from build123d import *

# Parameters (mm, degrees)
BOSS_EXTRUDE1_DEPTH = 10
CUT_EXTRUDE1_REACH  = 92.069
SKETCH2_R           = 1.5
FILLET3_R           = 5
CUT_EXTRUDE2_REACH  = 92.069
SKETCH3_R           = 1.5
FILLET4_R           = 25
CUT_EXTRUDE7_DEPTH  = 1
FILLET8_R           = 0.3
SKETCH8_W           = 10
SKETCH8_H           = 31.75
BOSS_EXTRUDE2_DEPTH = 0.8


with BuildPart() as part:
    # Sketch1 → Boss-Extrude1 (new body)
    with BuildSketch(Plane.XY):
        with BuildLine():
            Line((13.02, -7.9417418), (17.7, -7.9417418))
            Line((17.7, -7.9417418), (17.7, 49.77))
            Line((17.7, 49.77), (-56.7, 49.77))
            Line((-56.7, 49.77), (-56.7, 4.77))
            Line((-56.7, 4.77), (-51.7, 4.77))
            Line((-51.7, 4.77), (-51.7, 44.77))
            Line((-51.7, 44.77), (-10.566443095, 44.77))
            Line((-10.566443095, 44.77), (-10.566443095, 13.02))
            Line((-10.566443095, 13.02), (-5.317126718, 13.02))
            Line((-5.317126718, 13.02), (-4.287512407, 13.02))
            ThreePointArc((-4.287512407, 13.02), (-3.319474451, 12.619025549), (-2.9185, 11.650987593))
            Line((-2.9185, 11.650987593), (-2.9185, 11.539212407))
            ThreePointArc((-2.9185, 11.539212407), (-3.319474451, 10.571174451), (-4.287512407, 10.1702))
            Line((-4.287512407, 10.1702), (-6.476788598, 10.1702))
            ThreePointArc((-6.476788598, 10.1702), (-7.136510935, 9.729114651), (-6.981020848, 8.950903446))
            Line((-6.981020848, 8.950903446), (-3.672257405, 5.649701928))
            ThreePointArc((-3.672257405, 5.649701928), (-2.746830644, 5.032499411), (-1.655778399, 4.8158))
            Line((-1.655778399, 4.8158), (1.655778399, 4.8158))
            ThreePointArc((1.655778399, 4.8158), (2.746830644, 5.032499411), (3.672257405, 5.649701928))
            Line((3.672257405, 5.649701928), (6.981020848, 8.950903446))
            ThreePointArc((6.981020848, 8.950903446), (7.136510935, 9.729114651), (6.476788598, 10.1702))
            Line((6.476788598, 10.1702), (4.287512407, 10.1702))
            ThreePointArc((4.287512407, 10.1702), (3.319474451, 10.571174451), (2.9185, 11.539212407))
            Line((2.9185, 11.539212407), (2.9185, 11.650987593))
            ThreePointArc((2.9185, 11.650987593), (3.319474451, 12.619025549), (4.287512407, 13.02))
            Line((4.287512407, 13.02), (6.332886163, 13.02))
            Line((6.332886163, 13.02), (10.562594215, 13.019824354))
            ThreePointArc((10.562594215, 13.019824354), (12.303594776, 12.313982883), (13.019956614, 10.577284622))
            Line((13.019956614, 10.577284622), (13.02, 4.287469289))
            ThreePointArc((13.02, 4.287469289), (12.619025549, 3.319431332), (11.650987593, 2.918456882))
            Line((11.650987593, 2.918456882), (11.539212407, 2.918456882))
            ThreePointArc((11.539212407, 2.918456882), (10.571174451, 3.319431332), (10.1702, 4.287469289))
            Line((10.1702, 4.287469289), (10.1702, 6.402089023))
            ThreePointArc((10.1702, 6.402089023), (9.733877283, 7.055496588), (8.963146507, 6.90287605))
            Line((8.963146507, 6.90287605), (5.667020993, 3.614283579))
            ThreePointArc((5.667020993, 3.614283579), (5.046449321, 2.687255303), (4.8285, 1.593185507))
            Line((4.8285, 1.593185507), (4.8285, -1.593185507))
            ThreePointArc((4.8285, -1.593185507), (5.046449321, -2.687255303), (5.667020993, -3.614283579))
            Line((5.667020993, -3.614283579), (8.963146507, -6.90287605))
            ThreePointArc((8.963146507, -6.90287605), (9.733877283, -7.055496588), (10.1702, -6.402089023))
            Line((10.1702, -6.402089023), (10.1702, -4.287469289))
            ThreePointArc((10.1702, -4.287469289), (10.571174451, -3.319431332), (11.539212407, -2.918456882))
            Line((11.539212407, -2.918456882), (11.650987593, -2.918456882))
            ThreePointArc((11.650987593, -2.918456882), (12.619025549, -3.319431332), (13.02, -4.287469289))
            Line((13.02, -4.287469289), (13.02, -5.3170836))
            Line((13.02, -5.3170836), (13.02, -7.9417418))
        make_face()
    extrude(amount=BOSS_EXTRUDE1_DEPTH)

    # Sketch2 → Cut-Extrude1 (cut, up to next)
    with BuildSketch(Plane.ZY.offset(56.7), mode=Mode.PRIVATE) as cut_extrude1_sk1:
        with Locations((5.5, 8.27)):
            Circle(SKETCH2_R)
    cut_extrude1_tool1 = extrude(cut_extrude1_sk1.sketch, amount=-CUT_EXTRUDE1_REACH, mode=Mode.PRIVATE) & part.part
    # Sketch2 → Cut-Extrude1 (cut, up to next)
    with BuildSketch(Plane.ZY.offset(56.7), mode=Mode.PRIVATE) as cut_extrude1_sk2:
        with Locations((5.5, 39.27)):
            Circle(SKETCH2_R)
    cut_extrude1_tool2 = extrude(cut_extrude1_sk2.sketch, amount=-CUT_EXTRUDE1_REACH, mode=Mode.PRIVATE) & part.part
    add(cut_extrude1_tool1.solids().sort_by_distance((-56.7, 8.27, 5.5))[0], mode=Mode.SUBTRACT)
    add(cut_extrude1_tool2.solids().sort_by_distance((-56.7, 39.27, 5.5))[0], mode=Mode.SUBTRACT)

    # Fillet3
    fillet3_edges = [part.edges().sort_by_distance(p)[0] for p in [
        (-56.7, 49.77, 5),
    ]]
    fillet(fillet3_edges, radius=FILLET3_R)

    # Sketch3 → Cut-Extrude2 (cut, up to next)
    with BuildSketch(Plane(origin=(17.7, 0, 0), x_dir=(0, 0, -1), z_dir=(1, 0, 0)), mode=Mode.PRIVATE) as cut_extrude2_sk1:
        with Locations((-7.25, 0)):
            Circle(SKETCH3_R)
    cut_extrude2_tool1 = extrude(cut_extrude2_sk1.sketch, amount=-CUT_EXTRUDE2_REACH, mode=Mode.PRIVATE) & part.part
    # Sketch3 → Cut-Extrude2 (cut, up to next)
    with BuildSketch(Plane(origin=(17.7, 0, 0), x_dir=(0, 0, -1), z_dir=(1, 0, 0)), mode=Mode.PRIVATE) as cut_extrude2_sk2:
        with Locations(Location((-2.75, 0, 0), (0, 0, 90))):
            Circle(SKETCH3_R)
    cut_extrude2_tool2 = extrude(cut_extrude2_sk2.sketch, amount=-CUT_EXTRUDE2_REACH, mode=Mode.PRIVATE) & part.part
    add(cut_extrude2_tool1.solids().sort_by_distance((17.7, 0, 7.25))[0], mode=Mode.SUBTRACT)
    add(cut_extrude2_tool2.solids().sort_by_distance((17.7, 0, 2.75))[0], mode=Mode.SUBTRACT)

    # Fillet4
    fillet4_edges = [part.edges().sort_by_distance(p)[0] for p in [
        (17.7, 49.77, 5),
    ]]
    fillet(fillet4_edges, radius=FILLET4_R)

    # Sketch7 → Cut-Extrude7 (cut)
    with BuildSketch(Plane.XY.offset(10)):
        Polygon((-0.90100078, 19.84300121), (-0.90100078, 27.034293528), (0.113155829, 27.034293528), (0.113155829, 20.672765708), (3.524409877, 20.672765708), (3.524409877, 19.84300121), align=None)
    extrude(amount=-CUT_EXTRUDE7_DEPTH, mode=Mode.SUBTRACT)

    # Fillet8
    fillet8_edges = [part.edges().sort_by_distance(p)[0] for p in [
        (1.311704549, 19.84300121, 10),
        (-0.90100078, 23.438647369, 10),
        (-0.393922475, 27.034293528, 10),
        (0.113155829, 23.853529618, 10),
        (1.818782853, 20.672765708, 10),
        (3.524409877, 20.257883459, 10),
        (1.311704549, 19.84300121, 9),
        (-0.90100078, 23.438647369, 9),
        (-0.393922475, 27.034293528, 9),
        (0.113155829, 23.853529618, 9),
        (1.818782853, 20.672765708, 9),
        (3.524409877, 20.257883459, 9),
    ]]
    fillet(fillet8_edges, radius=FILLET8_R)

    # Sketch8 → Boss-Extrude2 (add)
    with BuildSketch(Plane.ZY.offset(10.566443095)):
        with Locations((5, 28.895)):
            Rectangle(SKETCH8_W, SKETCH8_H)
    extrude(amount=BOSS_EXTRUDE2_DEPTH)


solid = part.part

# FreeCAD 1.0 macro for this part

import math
import FreeCAD as App
import Part
import Sketcher
from FreeCAD import Vector
Q = App.Units.Quantity


def edges_at(feature, points):
    """Names of the edges that pass closest to the given points."""
    edges = feature.Shape.Edges
    near = lambda p: min(range(len(edges)), key=lambda i: edges[i].distToShape(Part.Vertex(*p))[0])
    return sorted({f"Edge{near(p) + 1}" for p in points})

doc = App.newDocument("Part")
body = doc.addObject("PartDesign::Body", "Body")

# Sketch on XY plane
sketch1 = body.newObject("Sketcher::SketchObject", "Sketch")
sketch1.AttachmentSupport = (doc.getObject("XY_Plane"), [""])
sketch1.MapMode = "FlatFace"
sketch1.addGeometry(Part.LineSegment(Vector(13.02, -7.94, 0), Vector(17.7, -7.94, 0)), False)
sketch1.addGeometry(Part.LineSegment(Vector(17.7, -7.94, 0), Vector(17.7, 49.77, 0)), False)
sketch1.addGeometry(Part.LineSegment(Vector(17.7, 49.77, 0), Vector(-56.7, 49.77, 0)), False)
sketch1.addGeometry(Part.LineSegment(Vector(-56.7, 49.77, 0), Vector(-56.7, 4.77, 0)), False)
sketch1.addGeometry(Part.LineSegment(Vector(-56.7, 4.77, 0), Vector(-51.7, 4.77, 0)), False)
sketch1.addGeometry(Part.LineSegment(Vector(-51.7, 4.77, 0), Vector(-51.7, 44.77, 0)), False)
sketch1.addGeometry(Part.LineSegment(Vector(-51.7, 44.77, 0), Vector(-10.57, 44.77, 0)), False)
sketch1.addGeometry(Part.LineSegment(Vector(-10.57, 44.77, 0), Vector(-10.57, 13.02, 0)), False)
sketch1.addGeometry(Part.LineSegment(Vector(-10.57, 13.02, 0), Vector(-4.29, 13.02, 0)), False)
sketch1.addGeometry(Part.ArcOfCircle(Part.Circle(Vector(-4.29, 11.65, 0), Vector(0, 0, 1), 1.37), math.radians(0), math.radians(90)), False)
sketch1.addGeometry(Part.LineSegment(Vector(-2.92, 11.65, 0), Vector(-2.92, 11.54, 0)), False)
sketch1.addGeometry(Part.ArcOfCircle(Part.Circle(Vector(-4.29, 11.54, 0), Vector(0, 0, 1), 1.37), math.radians(-90), math.radians(0)), False)
sketch1.addGeometry(Part.LineSegment(Vector(-4.29, 10.17, 0), Vector(-6.48, 10.17, 0)), False)
sketch1.addGeometry(Part.ArcOfCircle(Part.Circle(Vector(-6.48, 9.46, 0), Vector(0, 0, 1), 0.71), math.radians(90), math.radians(225)), False)
sketch1.addGeometry(Part.LineSegment(Vector(-6.98, 8.95, 0), Vector(-3.67, 5.65, 0)), False)
sketch1.addGeometry(Part.ArcOfCircle(Part.Circle(Vector(-1.66, 7.67, 0), Vector(0, 0, 1), 2.85), math.radians(-135), math.radians(-90)), False)
sketch1.addGeometry(Part.LineSegment(Vector(-1.66, 4.82, 0), Vector(1.66, 4.82, 0)), False)
sketch1.addGeometry(Part.ArcOfCircle(Part.Circle(Vector(1.66, 7.67, 0), Vector(0, 0, 1), 2.85), math.radians(-90), math.radians(-45)), False)
sketch1.addGeometry(Part.LineSegment(Vector(3.67, 5.65, 0), Vector(6.98, 8.95, 0)), False)
sketch1.addGeometry(Part.ArcOfCircle(Part.Circle(Vector(6.48, 9.46, 0), Vector(0, 0, 1), 0.71), math.radians(-45), math.radians(90)), False)
sketch1.addGeometry(Part.LineSegment(Vector(6.48, 10.17, 0), Vector(4.29, 10.17, 0)), False)
sketch1.addGeometry(Part.ArcOfCircle(Part.Circle(Vector(4.29, 11.54, 0), Vector(0, 0, 1), 1.37), math.radians(-180), math.radians(-90)), False)
sketch1.addGeometry(Part.LineSegment(Vector(2.92, 11.54, 0), Vector(2.92, 11.65, 0)), False)
sketch1.addGeometry(Part.ArcOfCircle(Part.Circle(Vector(4.29, 11.65, 0), Vector(0, 0, 1), 1.37), math.radians(90), math.radians(180)), False)
sketch1.addGeometry(Part.LineSegment(Vector(4.29, 13.02, 0), Vector(6.33, 13.02, 0)), False)
sketch1.addGeometry(Part.LineSegment(Vector(6.33, 13.02, 0), Vector(10.56, 13.02, 0)), False)
sketch1.addGeometry(Part.ArcOfCircle(Part.Circle(Vector(10.59, 10.59, 0), Vector(0, 0, 1), 2.43), math.radians(0), math.radians(91)), False)
sketch1.addGeometry(Part.LineSegment(Vector(13.02, 10.58, 0), Vector(13.02, 4.29, 0)), False)
sketch1.addGeometry(Part.ArcOfCircle(Part.Circle(Vector(11.65, 4.29, 0), Vector(0, 0, 1), 1.37), math.radians(-90), math.radians(0)), False)
sketch1.addGeometry(Part.LineSegment(Vector(11.65, 2.92, 0), Vector(11.54, 2.92, 0)), False)
sketch1.addGeometry(Part.ArcOfCircle(Part.Circle(Vector(11.54, 4.29, 0), Vector(0, 0, 1), 1.37), math.radians(180), math.radians(270)), False)
sketch1.addGeometry(Part.LineSegment(Vector(10.17, 4.29, 0), Vector(10.17, 6.4, 0)), False)
sketch1.addGeometry(Part.ArcOfCircle(Part.Circle(Vector(9.46, 6.4, 0), Vector(0, 0, 1), 0.71), math.radians(0), math.radians(135)), False)
sketch1.addGeometry(Part.LineSegment(Vector(8.96, 6.9, 0), Vector(5.67, 3.61, 0)), False)
sketch1.addGeometry(Part.ArcOfCircle(Part.Circle(Vector(7.68, 1.59, 0), Vector(0, 0, 1), 2.85), math.radians(135), math.radians(180)), False)
sketch1.addGeometry(Part.LineSegment(Vector(4.83, 1.59, 0), Vector(4.83, -1.59, 0)), False)
sketch1.addGeometry(Part.ArcOfCircle(Part.Circle(Vector(7.68, -1.59, 0), Vector(0, 0, 1), 2.85), math.radians(180), math.radians(225)), False)
sketch1.addGeometry(Part.LineSegment(Vector(5.67, -3.61, 0), Vector(8.96, -6.9, 0)), False)
sketch1.addGeometry(Part.ArcOfCircle(Part.Circle(Vector(9.46, -6.4, 0), Vector(0, 0, 1), 0.71), math.radians(-135), math.radians(0)), False)
sketch1.addGeometry(Part.LineSegment(Vector(10.17, -6.4, 0), Vector(10.17, -4.29, 0)), False)
sketch1.addGeometry(Part.ArcOfCircle(Part.Circle(Vector(11.54, -4.29, 0), Vector(0, 0, 1), 1.37), math.radians(90), math.radians(180)), False)
sketch1.addGeometry(Part.LineSegment(Vector(11.54, -2.92, 0), Vector(11.65, -2.92, 0)), False)
sketch1.addGeometry(Part.ArcOfCircle(Part.Circle(Vector(11.65, -4.29, 0), Vector(0, 0, 1), 1.37), math.radians(0), math.radians(90)), False)
sketch1.addGeometry(Part.LineSegment(Vector(13.02, -4.29, 0), Vector(13.02, -7.94, 0)), False)
sketch1.addConstraint(Sketcher.Constraint("Coincident", 0, 2, 1, 1))
sketch1.addConstraint(Sketcher.Constraint("Coincident", 1, 2, 2, 1))
sketch1.addConstraint(Sketcher.Constraint("Coincident", 2, 2, 3, 1))
sketch1.addConstraint(Sketcher.Constraint("Coincident", 3, 2, 4, 1))
sketch1.addConstraint(Sketcher.Constraint("Coincident", 4, 2, 5, 1))
sketch1.addConstraint(Sketcher.Constraint("Coincident", 5, 2, 6, 1))
sketch1.addConstraint(Sketcher.Constraint("Coincident", 6, 2, 7, 1))
sketch1.addConstraint(Sketcher.Constraint("Coincident", 7, 2, 8, 1))
sketch1.addConstraint(Sketcher.Constraint("Tangent", 8, 2, 9, 2))
sketch1.addConstraint(Sketcher.Constraint("Tangent", 9, 1, 10, 1))
sketch1.addConstraint(Sketcher.Constraint("Tangent", 10, 2, 11, 2))
sketch1.addConstraint(Sketcher.Constraint("Tangent", 11, 1, 12, 1))
sketch1.addConstraint(Sketcher.Constraint("Tangent", 12, 2, 13, 1))
sketch1.addConstraint(Sketcher.Constraint("Tangent", 13, 2, 14, 1))
sketch1.addConstraint(Sketcher.Constraint("Tangent", 14, 2, 15, 1))
sketch1.addConstraint(Sketcher.Constraint("Tangent", 15, 2, 16, 1))
sketch1.addConstraint(Sketcher.Constraint("Tangent", 16, 2, 17, 1))
sketch1.addConstraint(Sketcher.Constraint("Tangent", 17, 2, 18, 1))
sketch1.addConstraint(Sketcher.Constraint("Tangent", 18, 2, 19, 1))
sketch1.addConstraint(Sketcher.Constraint("Tangent", 19, 2, 20, 1))
sketch1.addConstraint(Sketcher.Constraint("Tangent", 20, 2, 21, 2))
sketch1.addConstraint(Sketcher.Constraint("Tangent", 21, 1, 22, 1))
sketch1.addConstraint(Sketcher.Constraint("Tangent", 22, 2, 23, 2))
sketch1.addConstraint(Sketcher.Constraint("Tangent", 23, 1, 24, 1))
sketch1.addConstraint(Sketcher.Constraint("Coincident", 24, 2, 25, 1))
sketch1.addConstraint(Sketcher.Constraint("Coincident", 25, 2, 26, 2))
sketch1.addConstraint(Sketcher.Constraint("Coincident", 26, 1, 27, 1))
sketch1.addConstraint(Sketcher.Constraint("Coincident", 27, 2, 28, 2))
sketch1.addConstraint(Sketcher.Constraint("Tangent", 28, 1, 29, 1))
sketch1.addConstraint(Sketcher.Constraint("Tangent", 29, 2, 30, 2))
sketch1.addConstraint(Sketcher.Constraint("Tangent", 30, 1, 31, 1))
sketch1.addConstraint(Sketcher.Constraint("Tangent", 31, 2, 32, 1))
sketch1.addConstraint(Sketcher.Constraint("Tangent", 32, 2, 33, 1))
sketch1.addConstraint(Sketcher.Constraint("Tangent", 33, 2, 34, 1))
sketch1.addConstraint(Sketcher.Constraint("Tangent", 34, 2, 35, 1))
sketch1.addConstraint(Sketcher.Constraint("Tangent", 35, 2, 36, 1))
sketch1.addConstraint(Sketcher.Constraint("Tangent", 36, 2, 37, 1))
sketch1.addConstraint(Sketcher.Constraint("Tangent", 37, 2, 38, 1))
sketch1.addConstraint(Sketcher.Constraint("Tangent", 38, 2, 39, 1))
sketch1.addConstraint(Sketcher.Constraint("Tangent", 39, 2, 40, 2))
sketch1.addConstraint(Sketcher.Constraint("Tangent", 40, 1, 41, 1))
sketch1.addConstraint(Sketcher.Constraint("Tangent", 41, 2, 42, 2))
sketch1.addConstraint(Sketcher.Constraint("Tangent", 42, 1, 43, 1))
sketch1.addConstraint(Sketcher.Constraint("Coincident", 43, 2, 0, 1))
sketch1.addConstraint(Sketcher.Constraint("Horizontal", 0))
sketch1.addConstraint(Sketcher.Constraint("Vertical", 1))
sketch1.addConstraint(Sketcher.Constraint("Horizontal", 2))
sketch1.addConstraint(Sketcher.Constraint("Vertical", 3))
sketch1.addConstraint(Sketcher.Constraint("Horizontal", 4))
sketch1.addConstraint(Sketcher.Constraint("Vertical", 5))
sketch1.addConstraint(Sketcher.Constraint("Horizontal", 6))
sketch1.addConstraint(Sketcher.Constraint("Vertical", 7))
sketch1.addConstraint(Sketcher.Constraint("Horizontal", 8))
sketch1.addConstraint(Sketcher.Constraint("Vertical", 10))
sketch1.addConstraint(Sketcher.Constraint("Horizontal", 12))
sketch1.addConstraint(Sketcher.Constraint("Horizontal", 16))
sketch1.addConstraint(Sketcher.Constraint("Horizontal", 20))
sketch1.addConstraint(Sketcher.Constraint("Vertical", 22))
sketch1.addConstraint(Sketcher.Constraint("Horizontal", 24))
sketch1.addConstraint(Sketcher.Constraint("Horizontal", 29))
sketch1.addConstraint(Sketcher.Constraint("Vertical", 31))
sketch1.addConstraint(Sketcher.Constraint("Vertical", 35))
sketch1.addConstraint(Sketcher.Constraint("Vertical", 39))
sketch1.addConstraint(Sketcher.Constraint("Horizontal", 41))
sketch1.addConstraint(Sketcher.Constraint("Vertical", 43))
sketch1.addConstraint(Sketcher.Constraint("Equal", 9, 11))
sketch1.addConstraint(Sketcher.Constraint("Equal", 15, 17))
sketch1.addConstraint(Sketcher.Constraint("Equal", 13, 19))
sketch1.addConstraint(Sketcher.Constraint("Equal", 11, 21))
sketch1.addConstraint(Sketcher.Constraint("Equal", 21, 23))
sketch1.addConstraint(Sketcher.Constraint("Equal", 23, 28))
sketch1.addConstraint(Sketcher.Constraint("Equal", 28, 30))
sketch1.addConstraint(Sketcher.Constraint("Equal", 17, 34))
sketch1.addConstraint(Sketcher.Constraint("Equal", 34, 36))
sketch1.addConstraint(Sketcher.Constraint("Equal", 32, 38))
sketch1.addConstraint(Sketcher.Constraint("Equal", 30, 40))
sketch1.addConstraint(Sketcher.Constraint("Equal", 40, 42))
sketch1.addConstraint(Sketcher.Constraint("Symmetric", 13, 3, 19, 3, -2))
sketch1.addConstraint(Sketcher.Constraint("Symmetric", 9, 3, 23, 3, -2))
sketch1.addConstraint(Sketcher.Constraint("Symmetric", 32, 3, 38, 3, -1))
sketch1.addConstraint(Sketcher.Constraint("Symmetric", 28, 3, 42, 3, -1))
sketch1.addConstraint(Sketcher.Constraint("Parallel", 18, 33))
sketch1.addConstraint(Sketcher.Constraint("Parallel", 14, 37))
sketch1.addConstraint(Sketcher.Constraint("Horizontal", 14, 2, 17, 2))
sketch1.addConstraint(Sketcher.Constraint("Horizontal", 30, 3, 27, 2))
sketch1.addConstraint(Sketcher.Constraint("Equal", 41, 10))
sketch1.addConstraint(Sketcher.Constraint("DistanceX", 4, 1, 4, 2, Q("5 mm")))
sketch1.addConstraint(Sketcher.Constraint("DistanceY", 3, 2, 3, 1, Q("45 mm")))
sketch1.addConstraint(Sketcher.Constraint("DistanceY", 5, 1, 5, 2, Q("40 mm")))
sketch1.addConstraint(Sketcher.Constraint("DistanceX", 2, 2, 2, 1, Q("74.4 mm")))
sketch1.addConstraint(Sketcher.Constraint("Radius", 15, Q("2.855 mm")))
sketch1.addConstraint(Sketcher.Constraint("DistanceX", 0, 1, 0, 2, Q("4.68 mm")))
sketch1.addConstraint(Sketcher.Constraint("DistanceY", 7, 2, 7, 1, Q("31.75 mm")))
sketch1.addConstraint(Sketcher.Constraint("DistanceX", -1, 1, 0, 2, Q("17.7 mm")))
sketch1.addConstraint(Sketcher.Constraint("Radius", 26, Q("2.4282 mm")))
sketch1.addConstraint(Sketcher.Constraint("DistanceY", -1, 1, 1, 2, Q("49.77 mm")))
sketch1.addConstraint(Sketcher.Constraint("Radius", 13, Q("0.713909 mm")))
sketch1.addConstraint(Sketcher.Constraint("Radius", 32, Q("0.707411 mm")))
sketch1.addConstraint(Sketcher.Constraint("Radius", 9, Q("1.369012 mm")))
sketch1.addConstraint(Sketcher.Constraint("Distance", 33, Q("4.656102 mm")))
sketch1.addConstraint(Sketcher.Constraint("DistanceX", 8, 1, 8, 2, Q("6.278931 mm")))
sketch1.addConstraint(Sketcher.Constraint("DistanceY", 1, 1, 1, 2, Q("57.711742 mm")))
sketch1.addConstraint(Sketcher.Constraint("DistanceY", 31, 1, 31, 2, Q("2.11462 mm")))
sketch1.addConstraint(Sketcher.Constraint("DistanceY", 35, 2, 35, 1, Q("3.186371 mm")))
sketch1.addConstraint(Sketcher.Constraint("DistanceY", -1, 1, 15, 3, Q("7.6708 mm")))
sketch1.addConstraint(Sketcher.Constraint("DistanceX", -1, 1, 26, 3, Q("10.5918 mm")))
sketch1.addConstraint(Sketcher.Constraint("DistanceY", -1, 1, 26, 3, Q("10.5918 mm")))
sketch1.addConstraint(Sketcher.Constraint("DistanceX", -1, 1, 34, 3, Q("7.6835 mm")))
sketch1.addConstraint(Sketcher.Constraint("DistanceX", 9, 1, -1, 1, Q("2.9185 mm")))
sketch1.addConstraint(Sketcher.Constraint("DistanceY", -1, 1, 11, 1, Q("10.1702 mm")))
sketch1.addConstraint(Sketcher.Constraint("Distance", 25, Q("4.229708 mm")))
sketch1.addConstraint(Sketcher.Constraint("DistanceX", 12, 2, 12, 1, Q("2.189276 mm")))
sketch1.addConstraint(Sketcher.Constraint("DistanceX", 24, 1, 24, 2, Q("2.045374 mm")))
sketch1.addConstraint(Sketcher.Constraint("Distance", 27, Q("6.289815 mm")))
pad1 = body.newObject("PartDesign::Pad", "Pad")
pad1.Profile = sketch1
pad1.Length = 10

# Sketch on YZ plane
sketch2 = body.newObject("Sketcher::SketchObject", "Sketch001")
sketch2.AttachmentSupport = (doc.getObject("YZ_Plane"), [""])
sketch2.MapMode = "FlatFace"
sketch2.AttachmentOffset = App.Placement(Vector(0, 0, -56.7), App.Rotation())
sketch2.addGeometry(Part.Circle(Vector(8.3, 5.5, 0), Vector(0, 0, 1), 1.5), False)
sketch2.addConstraint(Sketcher.Constraint("Diameter", 0, Q("3 mm")))
sketch2.addConstraint(Sketcher.Constraint("DistanceY", -1, 1, 0, 3, Q("5.5 mm")))
sketch2.addConstraint(Sketcher.Constraint("DistanceX", -1, 1, 0, 3, Q("8.27 mm")))
pocket1 = body.newObject("PartDesign::Pocket", "Pocket")
pocket1.Profile = sketch2
pocket1.Type = "UpToFirst"
pocket1.Reversed = True

# Sketch on YZ plane
sketch3 = body.newObject("Sketcher::SketchObject", "Sketch002")
sketch3.AttachmentSupport = (doc.getObject("YZ_Plane"), [""])
sketch3.MapMode = "FlatFace"
sketch3.AttachmentOffset = App.Placement(Vector(0, 0, -56.7), App.Rotation())
sketch3.addGeometry(Part.Circle(Vector(39.3, 5.5, 0), Vector(0, 0, 1), 1.5), False)
sketch3.addConstraint(Sketcher.Constraint("Diameter", 0, Q("3 mm")))
sketch3.addConstraint(Sketcher.Constraint("DistanceY", -1, 1, 0, 3, Q("5.5 mm")))
sketch3.addConstraint(Sketcher.Constraint("DistanceX", -1, 1, 0, 3, Q("39.27 mm")))
pocket2 = body.newObject("PartDesign::Pocket", "Pocket001")
pocket2.Profile = sketch3
pocket2.Type = "UpToFirst"
pocket2.Reversed = True
doc.recompute()

fillet = body.newObject("PartDesign::Fillet", "Fillet")
fillet.Base = (pocket2, edges_at(pocket2, [(-56.7, 49.77, 5)]))
fillet.Radius = 5

# Sketch on YZ plane
sketch4 = body.newObject("Sketcher::SketchObject", "Sketch003")
sketch4.AttachmentSupport = (doc.getObject("YZ_Plane"), [""])
sketch4.MapMode = "FlatFace"
sketch4.AttachmentOffset = App.Placement(Vector(0, 0, 17.7), App.Rotation())
sketch4.addGeometry(Part.Circle(Vector(0, 7.2, 0), Vector(0, 0, 1), 1.5), False)
sketch4.addConstraint(Sketcher.Constraint("PointOnObject", 0, 3, -2))
sketch4.addConstraint(Sketcher.Constraint("Diameter", 0, Q("3 mm")))
sketch4.addConstraint(Sketcher.Constraint("DistanceY", -1, 1, 0, 3, Q("7.25 mm")))
pocket3 = body.newObject("PartDesign::Pocket", "Pocket002")
pocket3.Profile = sketch4
pocket3.Type = "UpToFirst"

# Sketch on YZ plane
sketch5 = body.newObject("Sketcher::SketchObject", "Sketch004")
sketch5.AttachmentSupport = (doc.getObject("YZ_Plane"), [""])
sketch5.MapMode = "FlatFace"
sketch5.AttachmentOffset = App.Placement(Vector(0, 0, 17.7), App.Rotation())
sketch5.addGeometry(Part.Circle(Vector(0, 2.8, 0), Vector(0, 0, 1), 1.5), False)
sketch5.addConstraint(Sketcher.Constraint("PointOnObject", 0, 3, -2))
sketch5.addConstraint(Sketcher.Constraint("Diameter", 0, Q("3 mm")))
sketch5.addConstraint(Sketcher.Constraint("DistanceY", -1, 1, 0, 3, Q("2.75 mm")))
pocket4 = body.newObject("PartDesign::Pocket", "Pocket003")
pocket4.Profile = sketch5
pocket4.Type = "UpToFirst"
doc.recompute()

fillet2 = body.newObject("PartDesign::Fillet", "Fillet001")
fillet2.Base = (pocket4, edges_at(pocket4, [(17.7, 49.77, 5)]))
fillet2.Radius = 25

# Sketch on XY plane
sketch6 = body.newObject("Sketcher::SketchObject", "Sketch005")
sketch6.AttachmentSupport = (doc.getObject("XY_Plane"), [""])
sketch6.MapMode = "FlatFace"
sketch6.AttachmentOffset = App.Placement(Vector(0, 0, 10), App.Rotation())
sketch6.addGeometry(Part.LineSegment(Vector(-0.9, 27, 0), Vector(-0.9, 19.8, 0)), False)
sketch6.addGeometry(Part.LineSegment(Vector(-0.9, 19.8, 0), Vector(3.5, 19.8, 0)), False)
sketch6.addGeometry(Part.LineSegment(Vector(3.5, 19.8, 0), Vector(3.5, 20.7, 0)), False)
sketch6.addGeometry(Part.LineSegment(Vector(3.5, 20.7, 0), Vector(0.1, 20.7, 0)), False)
sketch6.addGeometry(Part.LineSegment(Vector(0.1, 20.7, 0), Vector(0.1, 27, 0)), False)
sketch6.addGeometry(Part.LineSegment(Vector(0.1, 27, 0), Vector(-0.9, 27, 0)), False)
sketch6.addConstraint(Sketcher.Constraint("Coincident", 0, 2, 1, 1))
sketch6.addConstraint(Sketcher.Constraint("Coincident", 1, 2, 2, 1))
sketch6.addConstraint(Sketcher.Constraint("Coincident", 2, 2, 3, 1))
sketch6.addConstraint(Sketcher.Constraint("Coincident", 3, 2, 4, 1))
sketch6.addConstraint(Sketcher.Constraint("Coincident", 4, 2, 5, 1))
sketch6.addConstraint(Sketcher.Constraint("Coincident", 5, 2, 0, 1))
sketch6.addConstraint(Sketcher.Constraint("Vertical", 0))
sketch6.addConstraint(Sketcher.Constraint("Horizontal", 1))
sketch6.addConstraint(Sketcher.Constraint("Vertical", 2))
sketch6.addConstraint(Sketcher.Constraint("Horizontal", 3))
sketch6.addConstraint(Sketcher.Constraint("Vertical", 4))
sketch6.addConstraint(Sketcher.Constraint("Horizontal", 5))
sketch6.addConstraint(Sketcher.Constraint("DistanceX", 0, 2, -1, 1, Q("0.901001 mm")))
sketch6.addConstraint(Sketcher.Constraint("DistanceY", -1, 1, 0, 2, Q("19.843001 mm")))
sketch6.addConstraint(Sketcher.Constraint("DistanceX", 1, 1, 1, 2, Q("4.425411 mm")))
sketch6.addConstraint(Sketcher.Constraint("DistanceX", 3, 2, 3, 1, Q("3.411254 mm")))
sketch6.addConstraint(Sketcher.Constraint("DistanceY", 0, 2, 0, 1, Q("7.191292 mm")))
sketch6.addConstraint(Sketcher.Constraint("DistanceY", 2, 1, 2, 2, Q("0.829764 mm")))
pocket5 = body.newObject("PartDesign::Pocket", "Pocket004")
pocket5.Profile = sketch6
pocket5.Length = 1
doc.recompute()

fillet3 = body.newObject("PartDesign::Fillet", "Fillet002")
fillet3.Base = (pocket5, edges_at(pocket5, [
    (1.312, 19.843, 10),
    (-0.901, 23.439, 10),
    (-0.394, 27.034, 10),
    (0.113, 23.854, 10),
    (1.819, 20.673, 10),
    (3.524, 20.258, 10),
    (1.312, 19.843, 9),
    (-0.901, 23.439, 9),
    (-0.394, 27.034, 9),
    (0.113, 23.854, 9),
    (1.819, 20.673, 9),
    (3.524, 20.258, 9),
]))
fillet3.Radius = 0.3

# Sketch on YZ plane
sketch7 = body.newObject("Sketcher::SketchObject", "Sketch006")
sketch7.AttachmentSupport = (doc.getObject("YZ_Plane"), [""])
sketch7.MapMode = "FlatFace"
sketch7.AttachmentOffset = App.Placement(Vector(0, 0, -10.566443), App.Rotation())
sketch7.addGeometry(Part.LineSegment(Vector(45, 0, 0), Vector(13, 0, 0)), False)
sketch7.addGeometry(Part.LineSegment(Vector(13, 0, 0), Vector(13, 10, 0)), False)
sketch7.addGeometry(Part.LineSegment(Vector(13, 10, 0), Vector(45, 10, 0)), False)
sketch7.addGeometry(Part.LineSegment(Vector(45, 10, 0), Vector(45, 0, 0)), False)
sketch7.addConstraint(Sketcher.Constraint("Coincident", 0, 2, 1, 1))
sketch7.addConstraint(Sketcher.Constraint("Coincident", 1, 2, 2, 1))
sketch7.addConstraint(Sketcher.Constraint("Coincident", 2, 2, 3, 1))
sketch7.addConstraint(Sketcher.Constraint("Coincident", 3, 2, 0, 1))
sketch7.addConstraint(Sketcher.Constraint("Horizontal", 0))
sketch7.addConstraint(Sketcher.Constraint("Vertical", 1))
sketch7.addConstraint(Sketcher.Constraint("Horizontal", 2))
sketch7.addConstraint(Sketcher.Constraint("Vertical", 3))
sketch7.addConstraint(Sketcher.Constraint("PointOnObject", 0, 2, -1))
sketch7.addConstraint(Sketcher.Constraint("DistanceY", 1, 1, 1, 2, Q("10 mm")))
sketch7.addConstraint(Sketcher.Constraint("DistanceX", 0, 2, 0, 1, Q("31.75 mm")))
sketch7.addConstraint(Sketcher.Constraint("DistanceX", -1, 1, 0, 2, Q("13.02 mm")))
pad2 = body.newObject("PartDesign::Pad", "Pad001")
pad2.Profile = sketch7
pad2.Length = 0.8
pad2.Reversed = True

doc.recompute()
